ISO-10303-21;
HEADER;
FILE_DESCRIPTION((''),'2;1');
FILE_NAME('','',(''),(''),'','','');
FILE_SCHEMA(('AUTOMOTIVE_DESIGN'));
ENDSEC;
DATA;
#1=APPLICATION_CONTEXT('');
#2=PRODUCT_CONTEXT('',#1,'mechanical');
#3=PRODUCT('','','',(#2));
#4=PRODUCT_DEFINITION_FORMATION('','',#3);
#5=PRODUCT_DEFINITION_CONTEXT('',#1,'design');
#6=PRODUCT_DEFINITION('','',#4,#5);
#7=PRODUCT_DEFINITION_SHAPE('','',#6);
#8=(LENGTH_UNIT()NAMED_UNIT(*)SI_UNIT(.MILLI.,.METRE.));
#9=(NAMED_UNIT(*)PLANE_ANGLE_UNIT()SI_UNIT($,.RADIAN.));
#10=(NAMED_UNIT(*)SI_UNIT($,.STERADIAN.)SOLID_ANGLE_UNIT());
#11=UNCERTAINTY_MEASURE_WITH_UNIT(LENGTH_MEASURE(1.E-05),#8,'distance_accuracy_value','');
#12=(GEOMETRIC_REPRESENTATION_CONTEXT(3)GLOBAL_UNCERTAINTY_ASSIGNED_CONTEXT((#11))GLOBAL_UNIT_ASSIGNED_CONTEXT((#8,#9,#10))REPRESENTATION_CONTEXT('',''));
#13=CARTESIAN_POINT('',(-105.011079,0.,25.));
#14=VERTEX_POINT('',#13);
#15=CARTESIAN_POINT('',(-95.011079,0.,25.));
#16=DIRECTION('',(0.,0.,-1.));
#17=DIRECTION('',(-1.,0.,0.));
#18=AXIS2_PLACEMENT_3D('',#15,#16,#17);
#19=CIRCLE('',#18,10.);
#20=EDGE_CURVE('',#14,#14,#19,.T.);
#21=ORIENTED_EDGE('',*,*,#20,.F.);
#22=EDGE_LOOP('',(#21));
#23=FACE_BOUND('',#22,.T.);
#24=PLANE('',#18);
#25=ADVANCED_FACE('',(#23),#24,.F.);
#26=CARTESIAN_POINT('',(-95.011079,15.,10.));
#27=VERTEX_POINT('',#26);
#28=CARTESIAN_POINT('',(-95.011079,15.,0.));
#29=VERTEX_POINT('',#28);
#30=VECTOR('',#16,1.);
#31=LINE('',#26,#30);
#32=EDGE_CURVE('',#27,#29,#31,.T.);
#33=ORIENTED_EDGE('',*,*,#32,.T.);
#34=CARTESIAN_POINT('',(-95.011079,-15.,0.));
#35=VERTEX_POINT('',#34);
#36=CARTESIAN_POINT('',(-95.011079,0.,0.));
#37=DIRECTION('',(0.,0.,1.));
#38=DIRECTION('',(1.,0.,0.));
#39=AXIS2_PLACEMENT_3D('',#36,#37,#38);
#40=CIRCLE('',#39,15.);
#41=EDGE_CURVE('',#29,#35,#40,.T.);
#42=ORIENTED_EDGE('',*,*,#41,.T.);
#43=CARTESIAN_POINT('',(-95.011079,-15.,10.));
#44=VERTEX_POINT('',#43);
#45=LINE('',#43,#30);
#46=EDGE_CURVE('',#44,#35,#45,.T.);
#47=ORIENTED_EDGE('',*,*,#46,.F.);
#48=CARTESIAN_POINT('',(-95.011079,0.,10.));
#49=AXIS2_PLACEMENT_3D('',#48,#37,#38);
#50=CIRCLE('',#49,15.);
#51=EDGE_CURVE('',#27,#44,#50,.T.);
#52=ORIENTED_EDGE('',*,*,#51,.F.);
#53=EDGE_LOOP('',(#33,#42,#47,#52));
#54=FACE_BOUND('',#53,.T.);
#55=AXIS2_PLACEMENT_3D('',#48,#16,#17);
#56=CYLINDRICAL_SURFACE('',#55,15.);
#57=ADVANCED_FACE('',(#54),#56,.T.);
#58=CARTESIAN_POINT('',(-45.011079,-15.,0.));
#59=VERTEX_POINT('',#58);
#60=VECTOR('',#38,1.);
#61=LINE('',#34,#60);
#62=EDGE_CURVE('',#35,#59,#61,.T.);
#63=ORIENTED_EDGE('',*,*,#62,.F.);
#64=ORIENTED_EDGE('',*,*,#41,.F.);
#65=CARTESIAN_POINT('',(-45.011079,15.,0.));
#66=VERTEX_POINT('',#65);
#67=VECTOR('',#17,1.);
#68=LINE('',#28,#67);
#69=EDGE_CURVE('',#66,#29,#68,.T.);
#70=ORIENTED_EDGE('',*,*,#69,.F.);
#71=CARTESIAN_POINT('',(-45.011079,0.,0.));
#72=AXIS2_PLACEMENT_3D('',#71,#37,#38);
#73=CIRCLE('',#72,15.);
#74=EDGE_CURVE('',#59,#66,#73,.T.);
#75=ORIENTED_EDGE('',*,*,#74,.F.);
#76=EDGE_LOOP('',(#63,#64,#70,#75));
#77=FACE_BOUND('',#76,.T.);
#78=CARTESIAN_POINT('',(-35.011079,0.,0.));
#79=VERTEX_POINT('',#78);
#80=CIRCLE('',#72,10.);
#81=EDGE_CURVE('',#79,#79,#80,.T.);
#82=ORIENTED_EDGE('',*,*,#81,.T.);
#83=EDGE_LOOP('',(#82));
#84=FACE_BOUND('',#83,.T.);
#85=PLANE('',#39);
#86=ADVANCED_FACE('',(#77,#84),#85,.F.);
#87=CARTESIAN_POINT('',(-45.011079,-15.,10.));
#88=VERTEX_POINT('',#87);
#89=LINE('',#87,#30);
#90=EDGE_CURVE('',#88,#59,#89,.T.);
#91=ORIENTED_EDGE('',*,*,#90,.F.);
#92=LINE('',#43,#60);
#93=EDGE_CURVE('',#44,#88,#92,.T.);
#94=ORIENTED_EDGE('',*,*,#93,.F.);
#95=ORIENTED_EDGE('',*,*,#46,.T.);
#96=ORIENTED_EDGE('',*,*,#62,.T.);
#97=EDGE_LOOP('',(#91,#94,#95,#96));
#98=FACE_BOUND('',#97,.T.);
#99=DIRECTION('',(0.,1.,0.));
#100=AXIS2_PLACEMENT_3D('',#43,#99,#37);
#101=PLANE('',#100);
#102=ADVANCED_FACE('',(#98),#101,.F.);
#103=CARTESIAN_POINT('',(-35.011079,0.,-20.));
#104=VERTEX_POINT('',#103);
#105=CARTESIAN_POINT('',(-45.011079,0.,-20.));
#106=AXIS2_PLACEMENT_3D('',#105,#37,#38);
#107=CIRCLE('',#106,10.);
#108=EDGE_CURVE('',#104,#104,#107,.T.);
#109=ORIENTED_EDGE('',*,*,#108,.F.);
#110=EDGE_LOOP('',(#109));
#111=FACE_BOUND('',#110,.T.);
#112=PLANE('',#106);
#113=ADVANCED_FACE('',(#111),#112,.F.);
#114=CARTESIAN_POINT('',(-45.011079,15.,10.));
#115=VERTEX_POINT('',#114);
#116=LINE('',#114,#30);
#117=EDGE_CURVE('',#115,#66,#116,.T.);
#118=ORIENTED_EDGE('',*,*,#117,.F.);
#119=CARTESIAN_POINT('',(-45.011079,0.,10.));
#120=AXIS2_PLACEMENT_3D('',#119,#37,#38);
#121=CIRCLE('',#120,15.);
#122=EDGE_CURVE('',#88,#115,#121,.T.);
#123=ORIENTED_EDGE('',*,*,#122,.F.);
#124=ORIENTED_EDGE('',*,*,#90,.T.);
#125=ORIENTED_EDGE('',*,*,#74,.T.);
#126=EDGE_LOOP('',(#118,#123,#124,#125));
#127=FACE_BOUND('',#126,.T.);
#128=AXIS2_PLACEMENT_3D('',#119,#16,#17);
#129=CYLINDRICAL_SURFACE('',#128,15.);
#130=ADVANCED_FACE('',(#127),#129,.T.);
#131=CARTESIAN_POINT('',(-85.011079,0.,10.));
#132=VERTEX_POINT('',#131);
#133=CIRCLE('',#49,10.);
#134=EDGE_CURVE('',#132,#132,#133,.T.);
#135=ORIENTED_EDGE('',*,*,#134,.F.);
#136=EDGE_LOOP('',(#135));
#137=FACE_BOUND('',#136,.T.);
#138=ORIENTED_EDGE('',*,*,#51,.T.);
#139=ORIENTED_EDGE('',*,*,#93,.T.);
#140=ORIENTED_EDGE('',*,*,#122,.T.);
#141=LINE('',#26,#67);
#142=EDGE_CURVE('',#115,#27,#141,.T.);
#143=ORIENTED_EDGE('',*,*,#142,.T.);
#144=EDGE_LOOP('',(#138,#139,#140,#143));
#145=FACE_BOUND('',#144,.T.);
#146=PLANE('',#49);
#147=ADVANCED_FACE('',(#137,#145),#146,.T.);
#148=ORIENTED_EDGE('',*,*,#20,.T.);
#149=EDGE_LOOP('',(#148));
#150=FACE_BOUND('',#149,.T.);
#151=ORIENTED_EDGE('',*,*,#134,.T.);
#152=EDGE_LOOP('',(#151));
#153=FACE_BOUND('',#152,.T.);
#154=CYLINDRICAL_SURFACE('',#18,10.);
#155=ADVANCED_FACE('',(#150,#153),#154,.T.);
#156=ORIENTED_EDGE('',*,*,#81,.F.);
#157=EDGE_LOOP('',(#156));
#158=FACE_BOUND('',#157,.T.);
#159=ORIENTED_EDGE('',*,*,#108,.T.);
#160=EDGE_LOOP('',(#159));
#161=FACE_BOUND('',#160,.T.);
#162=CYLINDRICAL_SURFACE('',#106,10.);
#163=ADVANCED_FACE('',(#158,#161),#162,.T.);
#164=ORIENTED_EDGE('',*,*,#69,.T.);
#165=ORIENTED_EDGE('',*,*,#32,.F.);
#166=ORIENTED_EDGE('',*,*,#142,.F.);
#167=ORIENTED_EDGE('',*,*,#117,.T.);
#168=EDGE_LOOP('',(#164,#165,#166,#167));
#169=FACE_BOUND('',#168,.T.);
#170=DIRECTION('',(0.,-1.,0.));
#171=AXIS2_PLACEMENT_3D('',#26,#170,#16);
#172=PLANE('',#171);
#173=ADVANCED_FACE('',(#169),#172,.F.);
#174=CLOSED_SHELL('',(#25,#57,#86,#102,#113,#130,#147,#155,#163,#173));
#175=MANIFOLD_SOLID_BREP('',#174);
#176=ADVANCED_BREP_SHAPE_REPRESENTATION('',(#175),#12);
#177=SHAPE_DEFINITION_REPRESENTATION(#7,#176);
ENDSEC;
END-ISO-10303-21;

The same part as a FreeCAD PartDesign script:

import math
import FreeCAD as App
import Part
import Sketcher

V = App.Vector
Q = App.Units.Quantity

doc = App.newDocument("Part")
body = doc.addObject("PartDesign::Body", "Body")

# Sketch on XY plane
sketch1 = doc.addObject("Sketcher::SketchObject", "Sketch")
body.addObject(sketch1)
sketch1.AttachmentSupport = (doc.XY_Plane, [""])
sketch1.MapMode = "FlatFace"
sketch1.addGeometry([
    Part.LineSegment(V(-45, 15, 0), V(-95, 15, 0)),  # 0
    Part.ArcOfCircle(Part.Circle(V(-95, 0, 0), V(0, 0, 1), 15), math.radians(90), math.radians(270)),  # 1
    Part.LineSegment(V(-95, -15, 0), V(-45, -15, 0)),  # 2
    Part.ArcOfCircle(Part.Circle(V(-45, 0, 0), V(0, 0, 1), 15), math.radians(-90), math.radians(90)),  # 3
    Part.Circle(V(-45, 0, 0), V(0, 0, 1), 10),  # 4
    Part.Circle(V(-95, 0, 0), V(0, 0, 1), 10),  # 5
], False)
sketch1.addConstraint([
    Sketcher.Constraint("Tangent", 0, 2, 1, 1),
    Sketcher.Constraint("Tangent", 1, 2, 2, 1),
    Sketcher.Constraint("Tangent", 2, 2, 3, 1),
    Sketcher.Constraint("Tangent", 3, 2, 0, 1),
    Sketcher.Constraint("Horizontal", 0),
    Sketcher.Constraint("Horizontal", 2),
    Sketcher.Constraint("Coincident", 4, 3, 3, 3),
    Sketcher.Constraint("Coincident", 5, 3, 1, 3),
    Sketcher.Constraint("Equal", 4, 5),
    Sketcher.Constraint("PointOnObject", 1, 3, -1),
    Sketcher.Constraint("Diameter", 4, Q("20 mm")),
    Sketcher.Constraint("Radius", 1, Q("15 mm")),
    Sketcher.Constraint("DistanceX", 0, 2, 0, 1, Q("50 mm")),
    Sketcher.Constraint("DistanceX", 1, 3, -1, 1, Q("95.011079 mm")),
])
pad1 = doc.addObject("PartDesign::Pad", "Pad")
body.addObject(pad1)
pad1.Profile = sketch1
pad1.Length = 10

# Sketch on XY plane
sketch2 = doc.addObject("Sketcher::SketchObject", "Sketch001")
body.addObject(sketch2)
sketch2.AttachmentSupport = (doc.XY_Plane, [""])
sketch2.MapMode = "FlatFace"
sketch2.AttachmentOffset = App.Placement(V(0, 0, -20), App.Rotation())
sketch2.addGeometry(Part.Circle(V(-45, 0, 0), V(0, 0, 1), 10), False)
sketch2.addConstraint([
    Sketcher.Constraint("PointOnObject", 0, 3, -1),
    Sketcher.Constraint("Diameter", 0, Q("20 mm")),
    Sketcher.Constraint("DistanceX", 0, 3, -1, 1, Q("45.011079 mm")),
])
pad2 = doc.addObject("PartDesign::Pad", "Pad001")
body.addObject(pad2)
pad2.Profile = sketch2
pad2.Length = 30

# Sketch on XY plane
sketch3 = doc.addObject("Sketcher::SketchObject", "Sketch002")
body.addObject(sketch3)
sketch3.AttachmentSupport = (doc.XY_Plane, [""])
sketch3.MapMode = "FlatFace"
sketch3.addGeometry(Part.Circle(V(-95, 0, 0), V(0, 0, 1), 10), False)
sketch3.addConstraint([
    Sketcher.Constraint("PointOnObject", 0, 3, -1),
    Sketcher.Constraint("Diameter", 0, Q("20 mm")),
    Sketcher.Constraint("DistanceX", 0, 3, -1, 1, Q("95.011079 mm")),
])
pad3 = doc.addObject("PartDesign::Pad", "Pad002")
body.addObject(pad3)
pad3.Profile = sketch3
pad3.Length = 25

doc.recompute()
